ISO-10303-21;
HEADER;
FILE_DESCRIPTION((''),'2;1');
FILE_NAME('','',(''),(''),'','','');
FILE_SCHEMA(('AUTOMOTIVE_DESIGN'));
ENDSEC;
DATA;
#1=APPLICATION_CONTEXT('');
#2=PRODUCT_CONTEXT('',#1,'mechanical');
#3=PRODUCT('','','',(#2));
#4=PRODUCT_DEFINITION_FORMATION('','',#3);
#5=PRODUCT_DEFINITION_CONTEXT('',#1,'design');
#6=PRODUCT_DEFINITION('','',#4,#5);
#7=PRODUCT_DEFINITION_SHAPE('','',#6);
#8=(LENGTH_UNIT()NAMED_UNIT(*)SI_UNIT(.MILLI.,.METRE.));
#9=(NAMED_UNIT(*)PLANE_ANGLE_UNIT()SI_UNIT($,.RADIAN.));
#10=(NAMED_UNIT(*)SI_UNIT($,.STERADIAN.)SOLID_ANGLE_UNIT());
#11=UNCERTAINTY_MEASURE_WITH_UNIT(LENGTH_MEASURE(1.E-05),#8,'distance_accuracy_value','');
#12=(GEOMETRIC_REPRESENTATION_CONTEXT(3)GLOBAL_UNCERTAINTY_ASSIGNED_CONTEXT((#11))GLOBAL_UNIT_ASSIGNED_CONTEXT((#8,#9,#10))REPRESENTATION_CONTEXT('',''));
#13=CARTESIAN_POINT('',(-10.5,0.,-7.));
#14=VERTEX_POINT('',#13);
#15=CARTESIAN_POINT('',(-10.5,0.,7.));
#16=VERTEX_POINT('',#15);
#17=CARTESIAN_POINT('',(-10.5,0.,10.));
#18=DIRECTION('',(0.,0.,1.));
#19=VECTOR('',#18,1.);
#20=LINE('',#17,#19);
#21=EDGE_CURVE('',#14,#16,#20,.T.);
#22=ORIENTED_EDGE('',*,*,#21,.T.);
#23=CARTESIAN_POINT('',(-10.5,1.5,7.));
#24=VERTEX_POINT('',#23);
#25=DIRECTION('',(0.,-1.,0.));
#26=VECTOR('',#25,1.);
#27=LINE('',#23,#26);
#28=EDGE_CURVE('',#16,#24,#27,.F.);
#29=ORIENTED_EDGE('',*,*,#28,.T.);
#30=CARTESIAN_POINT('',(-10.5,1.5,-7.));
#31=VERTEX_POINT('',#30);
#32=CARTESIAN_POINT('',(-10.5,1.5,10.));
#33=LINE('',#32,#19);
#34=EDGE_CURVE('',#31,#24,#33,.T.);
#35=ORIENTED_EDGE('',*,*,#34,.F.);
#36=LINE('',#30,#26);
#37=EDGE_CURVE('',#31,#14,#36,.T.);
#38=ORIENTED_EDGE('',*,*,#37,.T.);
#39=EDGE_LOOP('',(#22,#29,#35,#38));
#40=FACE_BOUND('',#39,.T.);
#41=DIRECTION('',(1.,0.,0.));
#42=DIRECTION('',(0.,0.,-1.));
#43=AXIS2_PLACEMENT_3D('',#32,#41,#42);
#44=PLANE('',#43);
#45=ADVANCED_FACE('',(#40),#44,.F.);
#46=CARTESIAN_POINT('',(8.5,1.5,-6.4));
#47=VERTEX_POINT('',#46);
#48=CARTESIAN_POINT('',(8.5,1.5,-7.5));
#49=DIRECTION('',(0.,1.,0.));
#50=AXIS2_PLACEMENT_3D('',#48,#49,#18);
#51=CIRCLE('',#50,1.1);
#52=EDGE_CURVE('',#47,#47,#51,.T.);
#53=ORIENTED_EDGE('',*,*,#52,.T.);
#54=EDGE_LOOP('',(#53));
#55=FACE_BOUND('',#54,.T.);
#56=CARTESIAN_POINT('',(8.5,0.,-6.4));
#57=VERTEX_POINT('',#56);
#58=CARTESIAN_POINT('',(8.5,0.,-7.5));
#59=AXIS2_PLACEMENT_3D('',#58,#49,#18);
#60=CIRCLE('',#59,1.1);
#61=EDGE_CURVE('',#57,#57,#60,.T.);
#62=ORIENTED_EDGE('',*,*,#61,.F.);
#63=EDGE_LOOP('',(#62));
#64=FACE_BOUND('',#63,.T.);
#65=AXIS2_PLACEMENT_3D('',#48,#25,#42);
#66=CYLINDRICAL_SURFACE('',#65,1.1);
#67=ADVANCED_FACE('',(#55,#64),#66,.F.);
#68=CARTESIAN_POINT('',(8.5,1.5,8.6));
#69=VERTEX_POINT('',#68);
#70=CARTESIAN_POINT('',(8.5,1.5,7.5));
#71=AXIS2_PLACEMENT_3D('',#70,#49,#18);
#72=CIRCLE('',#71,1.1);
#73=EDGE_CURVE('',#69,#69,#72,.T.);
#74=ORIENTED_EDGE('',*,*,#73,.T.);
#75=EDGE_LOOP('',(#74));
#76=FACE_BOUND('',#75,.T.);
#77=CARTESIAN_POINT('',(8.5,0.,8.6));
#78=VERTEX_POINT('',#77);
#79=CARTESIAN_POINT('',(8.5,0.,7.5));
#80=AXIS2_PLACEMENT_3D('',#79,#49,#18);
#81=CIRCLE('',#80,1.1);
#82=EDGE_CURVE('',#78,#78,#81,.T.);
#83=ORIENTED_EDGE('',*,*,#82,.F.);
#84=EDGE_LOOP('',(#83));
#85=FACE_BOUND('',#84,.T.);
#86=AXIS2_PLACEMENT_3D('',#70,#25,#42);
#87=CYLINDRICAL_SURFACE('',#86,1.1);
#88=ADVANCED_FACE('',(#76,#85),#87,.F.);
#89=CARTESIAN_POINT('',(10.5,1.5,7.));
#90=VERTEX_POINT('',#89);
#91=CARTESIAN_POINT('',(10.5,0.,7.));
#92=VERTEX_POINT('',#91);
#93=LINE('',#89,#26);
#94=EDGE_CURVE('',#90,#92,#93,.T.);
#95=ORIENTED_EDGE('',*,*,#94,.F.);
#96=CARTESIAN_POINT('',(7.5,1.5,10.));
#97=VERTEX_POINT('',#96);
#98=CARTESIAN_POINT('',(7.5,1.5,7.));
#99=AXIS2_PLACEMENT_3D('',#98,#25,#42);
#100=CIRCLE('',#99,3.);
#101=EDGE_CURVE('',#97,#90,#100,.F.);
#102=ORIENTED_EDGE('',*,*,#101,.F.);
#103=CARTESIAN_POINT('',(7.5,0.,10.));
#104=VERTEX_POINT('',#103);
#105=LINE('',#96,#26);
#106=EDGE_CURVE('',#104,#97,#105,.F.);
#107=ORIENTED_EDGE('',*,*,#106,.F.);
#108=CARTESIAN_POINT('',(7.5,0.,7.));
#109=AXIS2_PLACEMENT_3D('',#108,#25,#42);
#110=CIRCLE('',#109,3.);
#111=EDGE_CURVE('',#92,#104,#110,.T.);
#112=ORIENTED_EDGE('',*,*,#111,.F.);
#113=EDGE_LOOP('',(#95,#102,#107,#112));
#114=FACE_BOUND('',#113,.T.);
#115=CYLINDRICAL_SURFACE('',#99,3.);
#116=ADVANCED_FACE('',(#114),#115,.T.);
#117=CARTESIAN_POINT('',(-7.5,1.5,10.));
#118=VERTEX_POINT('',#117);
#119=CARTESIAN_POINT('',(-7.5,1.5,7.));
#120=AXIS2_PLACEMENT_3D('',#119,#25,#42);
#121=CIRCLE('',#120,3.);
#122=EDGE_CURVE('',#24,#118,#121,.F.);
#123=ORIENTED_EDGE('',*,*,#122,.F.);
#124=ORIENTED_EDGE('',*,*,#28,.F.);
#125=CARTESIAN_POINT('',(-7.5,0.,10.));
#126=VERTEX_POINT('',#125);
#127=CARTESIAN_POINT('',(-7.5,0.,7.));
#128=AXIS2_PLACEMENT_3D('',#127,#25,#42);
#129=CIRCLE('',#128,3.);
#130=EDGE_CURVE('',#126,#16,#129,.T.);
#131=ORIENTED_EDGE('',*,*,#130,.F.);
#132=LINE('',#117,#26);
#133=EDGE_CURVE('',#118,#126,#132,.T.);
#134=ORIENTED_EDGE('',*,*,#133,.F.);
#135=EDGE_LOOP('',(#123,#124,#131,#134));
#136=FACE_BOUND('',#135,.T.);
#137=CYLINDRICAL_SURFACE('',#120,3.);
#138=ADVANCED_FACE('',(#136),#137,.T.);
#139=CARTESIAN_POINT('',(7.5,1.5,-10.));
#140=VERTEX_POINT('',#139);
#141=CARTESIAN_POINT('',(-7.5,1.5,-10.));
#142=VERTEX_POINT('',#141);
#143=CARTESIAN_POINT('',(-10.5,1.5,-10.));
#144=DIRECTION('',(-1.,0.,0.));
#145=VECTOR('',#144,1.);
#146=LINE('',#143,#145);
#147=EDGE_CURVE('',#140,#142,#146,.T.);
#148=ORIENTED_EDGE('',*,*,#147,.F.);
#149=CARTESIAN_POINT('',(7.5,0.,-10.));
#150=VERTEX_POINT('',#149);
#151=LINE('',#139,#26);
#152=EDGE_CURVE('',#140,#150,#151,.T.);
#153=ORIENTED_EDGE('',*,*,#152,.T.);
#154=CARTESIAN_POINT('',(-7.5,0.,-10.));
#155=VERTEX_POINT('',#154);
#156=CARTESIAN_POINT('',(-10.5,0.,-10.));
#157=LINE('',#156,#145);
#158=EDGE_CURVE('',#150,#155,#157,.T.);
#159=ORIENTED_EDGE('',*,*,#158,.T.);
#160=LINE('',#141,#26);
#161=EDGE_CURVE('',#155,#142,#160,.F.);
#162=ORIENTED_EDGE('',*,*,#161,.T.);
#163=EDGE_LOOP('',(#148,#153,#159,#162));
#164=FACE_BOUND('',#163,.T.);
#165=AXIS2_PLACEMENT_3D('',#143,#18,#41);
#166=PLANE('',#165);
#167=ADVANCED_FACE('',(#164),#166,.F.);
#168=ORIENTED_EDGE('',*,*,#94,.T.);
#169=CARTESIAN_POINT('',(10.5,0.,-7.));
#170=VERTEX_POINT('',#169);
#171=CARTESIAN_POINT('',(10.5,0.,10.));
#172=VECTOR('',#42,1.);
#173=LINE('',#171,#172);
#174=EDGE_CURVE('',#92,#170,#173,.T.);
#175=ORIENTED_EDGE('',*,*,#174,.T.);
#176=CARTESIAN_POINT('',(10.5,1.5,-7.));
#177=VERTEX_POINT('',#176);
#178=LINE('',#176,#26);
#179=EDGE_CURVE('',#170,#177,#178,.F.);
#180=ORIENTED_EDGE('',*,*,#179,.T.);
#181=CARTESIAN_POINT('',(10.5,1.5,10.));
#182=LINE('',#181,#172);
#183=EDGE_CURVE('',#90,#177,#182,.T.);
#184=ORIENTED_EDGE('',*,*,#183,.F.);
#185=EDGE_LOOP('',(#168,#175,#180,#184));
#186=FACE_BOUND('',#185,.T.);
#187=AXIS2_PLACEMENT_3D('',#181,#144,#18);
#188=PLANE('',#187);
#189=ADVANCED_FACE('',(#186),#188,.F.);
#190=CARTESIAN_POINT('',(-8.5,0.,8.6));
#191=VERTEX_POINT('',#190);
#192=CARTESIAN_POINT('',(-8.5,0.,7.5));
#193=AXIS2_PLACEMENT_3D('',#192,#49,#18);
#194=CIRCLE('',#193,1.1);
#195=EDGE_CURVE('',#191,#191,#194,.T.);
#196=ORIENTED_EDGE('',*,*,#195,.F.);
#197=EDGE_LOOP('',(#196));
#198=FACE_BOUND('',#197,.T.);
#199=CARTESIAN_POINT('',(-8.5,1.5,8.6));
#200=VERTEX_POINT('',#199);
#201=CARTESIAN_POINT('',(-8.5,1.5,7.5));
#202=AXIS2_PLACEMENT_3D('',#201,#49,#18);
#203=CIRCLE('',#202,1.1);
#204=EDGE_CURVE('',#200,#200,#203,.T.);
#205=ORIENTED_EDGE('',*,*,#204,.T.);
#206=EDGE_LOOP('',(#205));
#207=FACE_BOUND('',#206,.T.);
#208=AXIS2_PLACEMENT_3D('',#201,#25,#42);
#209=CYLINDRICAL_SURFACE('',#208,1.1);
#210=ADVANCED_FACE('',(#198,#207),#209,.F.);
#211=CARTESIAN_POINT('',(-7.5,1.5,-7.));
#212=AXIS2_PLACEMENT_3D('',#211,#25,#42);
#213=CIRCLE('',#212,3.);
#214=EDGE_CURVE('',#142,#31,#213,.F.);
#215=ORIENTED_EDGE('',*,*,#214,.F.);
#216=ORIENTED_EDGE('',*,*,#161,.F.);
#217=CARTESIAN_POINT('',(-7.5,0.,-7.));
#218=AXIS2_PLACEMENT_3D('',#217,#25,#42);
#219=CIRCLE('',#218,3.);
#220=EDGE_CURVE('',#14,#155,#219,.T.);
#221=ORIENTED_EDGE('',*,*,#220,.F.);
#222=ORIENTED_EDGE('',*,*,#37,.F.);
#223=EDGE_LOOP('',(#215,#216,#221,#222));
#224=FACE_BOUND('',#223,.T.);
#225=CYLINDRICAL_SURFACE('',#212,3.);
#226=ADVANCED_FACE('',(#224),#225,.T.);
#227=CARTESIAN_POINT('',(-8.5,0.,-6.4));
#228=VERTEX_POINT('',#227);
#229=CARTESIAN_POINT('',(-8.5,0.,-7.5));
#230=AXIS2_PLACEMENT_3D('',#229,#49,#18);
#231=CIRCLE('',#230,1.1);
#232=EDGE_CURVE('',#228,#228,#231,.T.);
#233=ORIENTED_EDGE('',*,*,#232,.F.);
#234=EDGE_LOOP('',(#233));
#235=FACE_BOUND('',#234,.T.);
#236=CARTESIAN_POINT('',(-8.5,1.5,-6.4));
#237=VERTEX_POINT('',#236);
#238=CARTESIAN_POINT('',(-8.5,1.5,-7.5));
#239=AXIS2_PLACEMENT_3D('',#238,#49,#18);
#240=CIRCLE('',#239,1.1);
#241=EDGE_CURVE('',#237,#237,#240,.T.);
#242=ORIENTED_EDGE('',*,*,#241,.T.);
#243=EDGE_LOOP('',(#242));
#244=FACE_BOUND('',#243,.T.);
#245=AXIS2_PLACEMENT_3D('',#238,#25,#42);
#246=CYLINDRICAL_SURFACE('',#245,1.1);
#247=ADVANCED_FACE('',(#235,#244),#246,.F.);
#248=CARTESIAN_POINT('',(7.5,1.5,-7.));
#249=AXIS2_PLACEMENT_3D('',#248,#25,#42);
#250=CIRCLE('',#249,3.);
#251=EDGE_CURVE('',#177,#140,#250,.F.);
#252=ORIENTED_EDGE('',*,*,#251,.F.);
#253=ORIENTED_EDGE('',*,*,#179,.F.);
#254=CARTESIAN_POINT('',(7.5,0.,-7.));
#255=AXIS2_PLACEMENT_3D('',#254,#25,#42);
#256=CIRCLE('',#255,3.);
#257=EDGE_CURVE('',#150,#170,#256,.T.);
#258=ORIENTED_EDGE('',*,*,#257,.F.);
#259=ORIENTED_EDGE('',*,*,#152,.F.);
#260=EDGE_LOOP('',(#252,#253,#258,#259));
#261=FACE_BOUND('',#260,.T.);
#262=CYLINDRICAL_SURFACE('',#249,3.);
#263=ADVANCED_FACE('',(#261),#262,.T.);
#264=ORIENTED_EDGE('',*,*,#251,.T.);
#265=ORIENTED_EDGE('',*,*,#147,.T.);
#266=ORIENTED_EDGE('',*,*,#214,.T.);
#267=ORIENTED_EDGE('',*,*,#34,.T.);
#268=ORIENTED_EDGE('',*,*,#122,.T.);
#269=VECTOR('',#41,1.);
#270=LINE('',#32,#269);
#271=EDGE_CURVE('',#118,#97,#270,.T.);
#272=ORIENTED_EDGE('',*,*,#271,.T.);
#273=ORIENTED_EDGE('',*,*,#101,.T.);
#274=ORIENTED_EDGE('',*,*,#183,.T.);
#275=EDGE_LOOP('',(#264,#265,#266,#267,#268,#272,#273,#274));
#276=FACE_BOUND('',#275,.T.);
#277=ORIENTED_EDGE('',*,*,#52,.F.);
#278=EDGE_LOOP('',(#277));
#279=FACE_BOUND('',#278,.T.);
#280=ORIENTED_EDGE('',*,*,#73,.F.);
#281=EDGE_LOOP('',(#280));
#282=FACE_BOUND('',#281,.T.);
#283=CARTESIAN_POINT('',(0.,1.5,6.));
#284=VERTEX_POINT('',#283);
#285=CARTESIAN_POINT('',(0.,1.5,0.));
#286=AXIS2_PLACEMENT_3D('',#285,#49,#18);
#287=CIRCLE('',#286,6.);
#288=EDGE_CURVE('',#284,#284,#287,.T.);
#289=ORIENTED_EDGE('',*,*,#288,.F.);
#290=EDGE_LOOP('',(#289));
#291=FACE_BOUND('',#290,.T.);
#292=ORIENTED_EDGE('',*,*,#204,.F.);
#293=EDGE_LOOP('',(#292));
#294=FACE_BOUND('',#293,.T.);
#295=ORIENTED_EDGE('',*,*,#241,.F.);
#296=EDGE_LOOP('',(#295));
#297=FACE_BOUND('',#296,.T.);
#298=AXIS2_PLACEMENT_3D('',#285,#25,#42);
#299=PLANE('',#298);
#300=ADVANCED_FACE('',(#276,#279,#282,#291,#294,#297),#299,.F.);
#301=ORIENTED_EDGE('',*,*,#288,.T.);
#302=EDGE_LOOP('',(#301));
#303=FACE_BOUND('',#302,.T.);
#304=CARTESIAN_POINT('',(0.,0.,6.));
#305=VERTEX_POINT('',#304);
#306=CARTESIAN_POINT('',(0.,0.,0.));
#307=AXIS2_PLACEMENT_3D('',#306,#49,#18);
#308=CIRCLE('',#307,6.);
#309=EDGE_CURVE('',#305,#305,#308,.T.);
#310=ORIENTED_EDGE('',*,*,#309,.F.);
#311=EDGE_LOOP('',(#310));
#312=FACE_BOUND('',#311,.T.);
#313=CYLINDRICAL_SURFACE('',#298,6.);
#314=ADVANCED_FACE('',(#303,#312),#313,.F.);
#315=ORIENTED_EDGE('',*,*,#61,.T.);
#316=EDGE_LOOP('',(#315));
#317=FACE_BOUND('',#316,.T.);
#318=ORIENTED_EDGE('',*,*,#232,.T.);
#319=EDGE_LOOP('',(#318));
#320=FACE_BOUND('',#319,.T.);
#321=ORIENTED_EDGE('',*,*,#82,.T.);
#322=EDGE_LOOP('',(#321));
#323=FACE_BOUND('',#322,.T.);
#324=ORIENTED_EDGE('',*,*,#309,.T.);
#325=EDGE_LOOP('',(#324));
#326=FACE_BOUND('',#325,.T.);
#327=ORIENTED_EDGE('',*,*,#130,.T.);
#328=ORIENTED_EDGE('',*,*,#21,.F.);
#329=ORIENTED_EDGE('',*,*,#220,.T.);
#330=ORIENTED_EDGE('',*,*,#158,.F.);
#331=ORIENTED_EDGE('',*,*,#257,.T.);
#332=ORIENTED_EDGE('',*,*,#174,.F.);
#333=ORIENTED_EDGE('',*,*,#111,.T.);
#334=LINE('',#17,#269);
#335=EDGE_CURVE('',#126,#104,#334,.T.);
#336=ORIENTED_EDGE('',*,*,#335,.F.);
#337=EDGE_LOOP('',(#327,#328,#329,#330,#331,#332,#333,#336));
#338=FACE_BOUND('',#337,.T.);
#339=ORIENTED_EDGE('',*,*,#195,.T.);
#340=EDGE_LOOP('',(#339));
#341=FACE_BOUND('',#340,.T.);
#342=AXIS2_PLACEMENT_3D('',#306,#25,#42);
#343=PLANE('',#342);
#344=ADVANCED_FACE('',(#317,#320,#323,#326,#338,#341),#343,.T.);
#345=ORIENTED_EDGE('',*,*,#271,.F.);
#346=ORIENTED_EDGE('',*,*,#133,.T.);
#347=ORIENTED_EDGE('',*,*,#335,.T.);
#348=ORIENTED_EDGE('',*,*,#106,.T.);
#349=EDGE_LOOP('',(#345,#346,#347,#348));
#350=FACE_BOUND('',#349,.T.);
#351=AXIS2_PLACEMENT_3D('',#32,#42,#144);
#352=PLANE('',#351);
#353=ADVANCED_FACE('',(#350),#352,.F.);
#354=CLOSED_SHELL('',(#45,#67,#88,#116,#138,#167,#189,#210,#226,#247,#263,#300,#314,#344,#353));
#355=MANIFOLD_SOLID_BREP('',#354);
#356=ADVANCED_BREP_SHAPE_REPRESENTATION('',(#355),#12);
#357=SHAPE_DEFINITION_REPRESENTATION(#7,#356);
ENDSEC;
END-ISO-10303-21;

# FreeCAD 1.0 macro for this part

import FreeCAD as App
import Part
import Sketcher

V = App.Vector
Q = App.Units.Quantity


def edges_at(feature, points):
    """Names of the edges that pass closest to the given points."""
    edges = feature.Shape.Edges
    near = lambda p: min(range(len(edges)), key=lambda i: edges[i].distToShape(Part.Vertex(*p))[0])
    return sorted({f"Edge{near(p) + 1}" for p in points})


def add_polygon(sketch, points):
    """Adds a closed chain of lines whose ends are joined by coincident constraints."""
    first, n = sketch.GeometryCount, len(points)
    for a, b in zip(points, points[1:] + points[:1]):
        sketch.addGeometry(Part.LineSegment(App.Vector(*a, 0), App.Vector(*b, 0)), False)
    for i in range(n):
        sketch.addConstraint(Sketcher.Constraint("Coincident", first + i, 2, first + (i + 1) % n, 1))

doc = App.newDocument("Part")
body = doc.addObject("PartDesign::Body", "Body")

sketch1 = body.newObject("Sketcher::SketchObject", "Sketch")
sketch1.AttachmentSupport = (doc.getObject("XZ_Plane"), [""])
sketch1.MapMode = "FlatFace"
add_polygon(sketch1, [(-10.5, -10), (-10.5, 10), (10.5, 10), (10.5, -10)])
sketch1.addGeometry(Part.Circle(V(-8.5, 7.5, 0), V(0, 0, 1), 1.1), False)
sketch1.addGeometry(Part.Circle(V(8.5, 7.5, 0), V(0, 0, 1), 1.1), False)
sketch1.addGeometry(Part.Circle(V(-8.5, -7.5, 0), V(0, 0, 1), 1.1), False)
sketch1.addGeometry(Part.Circle(V(0, 0, 0), V(0, 0, 1), 6), False)
sketch1.addGeometry(Part.Circle(V(8.5, -7.5, 0), V(0, 0, 1), 1.1), False)
sketch1.addConstraint([
    Sketcher.Constraint("Vertical", 0),
    Sketcher.Constraint("Horizontal", 1),
    Sketcher.Constraint("Vertical", 2),
    Sketcher.Constraint("Horizontal", 3),
    Sketcher.Constraint("Coincident", 7, 3, -1, 1),
    Sketcher.Constraint("Equal", 4, 5),
    Sketcher.Constraint("Equal", 5, 6),
    Sketcher.Constraint("Equal", 6, 8),
    Sketcher.Constraint("Symmetric", 5, 3, 6, 3, -1, 1),
    Sketcher.Constraint("Symmetric", 4, 3, 8, 3, -1, 1),
    Sketcher.Constraint("Symmetric", 0, 2, 2, 2, -1, 1),
    Sketcher.Constraint("Symmetric", 4, 3, 5, 3, -2),
    Sketcher.Constraint("Diameter", 7, Q("12 mm")),
    Sketcher.Constraint("Diameter", 4, Q("2.2 mm")),
    Sketcher.Constraint("DistanceX", 1, 1, 1, 2, Q("21 mm")),
    Sketcher.Constraint("DistanceY", 0, 1, 0, 2, Q("20 mm")),
    Sketcher.Constraint("DistanceX", 4, 3, 5, 3, Q("17 mm")),
    Sketcher.Constraint("DistanceY", 6, 3, 4, 3, Q("15 mm")),
])
pad1 = body.newObject("PartDesign::Pad", "Pad")
pad1.Profile = sketch1
pad1.Length = 1.5
pad1.Reversed = True
doc.recompute()

fillet = body.newObject("PartDesign::Fillet", "Fillet")
fillet.Base = (pad1, edges_at(pad1, [
    (10.5, 0.75, 10),
    (-10.5, 0.75, 10),
    (-10.5, 0.75, -10),
    (10.5, 0.75, -10),
]))
fillet.Radius = 3

doc.recompute()
